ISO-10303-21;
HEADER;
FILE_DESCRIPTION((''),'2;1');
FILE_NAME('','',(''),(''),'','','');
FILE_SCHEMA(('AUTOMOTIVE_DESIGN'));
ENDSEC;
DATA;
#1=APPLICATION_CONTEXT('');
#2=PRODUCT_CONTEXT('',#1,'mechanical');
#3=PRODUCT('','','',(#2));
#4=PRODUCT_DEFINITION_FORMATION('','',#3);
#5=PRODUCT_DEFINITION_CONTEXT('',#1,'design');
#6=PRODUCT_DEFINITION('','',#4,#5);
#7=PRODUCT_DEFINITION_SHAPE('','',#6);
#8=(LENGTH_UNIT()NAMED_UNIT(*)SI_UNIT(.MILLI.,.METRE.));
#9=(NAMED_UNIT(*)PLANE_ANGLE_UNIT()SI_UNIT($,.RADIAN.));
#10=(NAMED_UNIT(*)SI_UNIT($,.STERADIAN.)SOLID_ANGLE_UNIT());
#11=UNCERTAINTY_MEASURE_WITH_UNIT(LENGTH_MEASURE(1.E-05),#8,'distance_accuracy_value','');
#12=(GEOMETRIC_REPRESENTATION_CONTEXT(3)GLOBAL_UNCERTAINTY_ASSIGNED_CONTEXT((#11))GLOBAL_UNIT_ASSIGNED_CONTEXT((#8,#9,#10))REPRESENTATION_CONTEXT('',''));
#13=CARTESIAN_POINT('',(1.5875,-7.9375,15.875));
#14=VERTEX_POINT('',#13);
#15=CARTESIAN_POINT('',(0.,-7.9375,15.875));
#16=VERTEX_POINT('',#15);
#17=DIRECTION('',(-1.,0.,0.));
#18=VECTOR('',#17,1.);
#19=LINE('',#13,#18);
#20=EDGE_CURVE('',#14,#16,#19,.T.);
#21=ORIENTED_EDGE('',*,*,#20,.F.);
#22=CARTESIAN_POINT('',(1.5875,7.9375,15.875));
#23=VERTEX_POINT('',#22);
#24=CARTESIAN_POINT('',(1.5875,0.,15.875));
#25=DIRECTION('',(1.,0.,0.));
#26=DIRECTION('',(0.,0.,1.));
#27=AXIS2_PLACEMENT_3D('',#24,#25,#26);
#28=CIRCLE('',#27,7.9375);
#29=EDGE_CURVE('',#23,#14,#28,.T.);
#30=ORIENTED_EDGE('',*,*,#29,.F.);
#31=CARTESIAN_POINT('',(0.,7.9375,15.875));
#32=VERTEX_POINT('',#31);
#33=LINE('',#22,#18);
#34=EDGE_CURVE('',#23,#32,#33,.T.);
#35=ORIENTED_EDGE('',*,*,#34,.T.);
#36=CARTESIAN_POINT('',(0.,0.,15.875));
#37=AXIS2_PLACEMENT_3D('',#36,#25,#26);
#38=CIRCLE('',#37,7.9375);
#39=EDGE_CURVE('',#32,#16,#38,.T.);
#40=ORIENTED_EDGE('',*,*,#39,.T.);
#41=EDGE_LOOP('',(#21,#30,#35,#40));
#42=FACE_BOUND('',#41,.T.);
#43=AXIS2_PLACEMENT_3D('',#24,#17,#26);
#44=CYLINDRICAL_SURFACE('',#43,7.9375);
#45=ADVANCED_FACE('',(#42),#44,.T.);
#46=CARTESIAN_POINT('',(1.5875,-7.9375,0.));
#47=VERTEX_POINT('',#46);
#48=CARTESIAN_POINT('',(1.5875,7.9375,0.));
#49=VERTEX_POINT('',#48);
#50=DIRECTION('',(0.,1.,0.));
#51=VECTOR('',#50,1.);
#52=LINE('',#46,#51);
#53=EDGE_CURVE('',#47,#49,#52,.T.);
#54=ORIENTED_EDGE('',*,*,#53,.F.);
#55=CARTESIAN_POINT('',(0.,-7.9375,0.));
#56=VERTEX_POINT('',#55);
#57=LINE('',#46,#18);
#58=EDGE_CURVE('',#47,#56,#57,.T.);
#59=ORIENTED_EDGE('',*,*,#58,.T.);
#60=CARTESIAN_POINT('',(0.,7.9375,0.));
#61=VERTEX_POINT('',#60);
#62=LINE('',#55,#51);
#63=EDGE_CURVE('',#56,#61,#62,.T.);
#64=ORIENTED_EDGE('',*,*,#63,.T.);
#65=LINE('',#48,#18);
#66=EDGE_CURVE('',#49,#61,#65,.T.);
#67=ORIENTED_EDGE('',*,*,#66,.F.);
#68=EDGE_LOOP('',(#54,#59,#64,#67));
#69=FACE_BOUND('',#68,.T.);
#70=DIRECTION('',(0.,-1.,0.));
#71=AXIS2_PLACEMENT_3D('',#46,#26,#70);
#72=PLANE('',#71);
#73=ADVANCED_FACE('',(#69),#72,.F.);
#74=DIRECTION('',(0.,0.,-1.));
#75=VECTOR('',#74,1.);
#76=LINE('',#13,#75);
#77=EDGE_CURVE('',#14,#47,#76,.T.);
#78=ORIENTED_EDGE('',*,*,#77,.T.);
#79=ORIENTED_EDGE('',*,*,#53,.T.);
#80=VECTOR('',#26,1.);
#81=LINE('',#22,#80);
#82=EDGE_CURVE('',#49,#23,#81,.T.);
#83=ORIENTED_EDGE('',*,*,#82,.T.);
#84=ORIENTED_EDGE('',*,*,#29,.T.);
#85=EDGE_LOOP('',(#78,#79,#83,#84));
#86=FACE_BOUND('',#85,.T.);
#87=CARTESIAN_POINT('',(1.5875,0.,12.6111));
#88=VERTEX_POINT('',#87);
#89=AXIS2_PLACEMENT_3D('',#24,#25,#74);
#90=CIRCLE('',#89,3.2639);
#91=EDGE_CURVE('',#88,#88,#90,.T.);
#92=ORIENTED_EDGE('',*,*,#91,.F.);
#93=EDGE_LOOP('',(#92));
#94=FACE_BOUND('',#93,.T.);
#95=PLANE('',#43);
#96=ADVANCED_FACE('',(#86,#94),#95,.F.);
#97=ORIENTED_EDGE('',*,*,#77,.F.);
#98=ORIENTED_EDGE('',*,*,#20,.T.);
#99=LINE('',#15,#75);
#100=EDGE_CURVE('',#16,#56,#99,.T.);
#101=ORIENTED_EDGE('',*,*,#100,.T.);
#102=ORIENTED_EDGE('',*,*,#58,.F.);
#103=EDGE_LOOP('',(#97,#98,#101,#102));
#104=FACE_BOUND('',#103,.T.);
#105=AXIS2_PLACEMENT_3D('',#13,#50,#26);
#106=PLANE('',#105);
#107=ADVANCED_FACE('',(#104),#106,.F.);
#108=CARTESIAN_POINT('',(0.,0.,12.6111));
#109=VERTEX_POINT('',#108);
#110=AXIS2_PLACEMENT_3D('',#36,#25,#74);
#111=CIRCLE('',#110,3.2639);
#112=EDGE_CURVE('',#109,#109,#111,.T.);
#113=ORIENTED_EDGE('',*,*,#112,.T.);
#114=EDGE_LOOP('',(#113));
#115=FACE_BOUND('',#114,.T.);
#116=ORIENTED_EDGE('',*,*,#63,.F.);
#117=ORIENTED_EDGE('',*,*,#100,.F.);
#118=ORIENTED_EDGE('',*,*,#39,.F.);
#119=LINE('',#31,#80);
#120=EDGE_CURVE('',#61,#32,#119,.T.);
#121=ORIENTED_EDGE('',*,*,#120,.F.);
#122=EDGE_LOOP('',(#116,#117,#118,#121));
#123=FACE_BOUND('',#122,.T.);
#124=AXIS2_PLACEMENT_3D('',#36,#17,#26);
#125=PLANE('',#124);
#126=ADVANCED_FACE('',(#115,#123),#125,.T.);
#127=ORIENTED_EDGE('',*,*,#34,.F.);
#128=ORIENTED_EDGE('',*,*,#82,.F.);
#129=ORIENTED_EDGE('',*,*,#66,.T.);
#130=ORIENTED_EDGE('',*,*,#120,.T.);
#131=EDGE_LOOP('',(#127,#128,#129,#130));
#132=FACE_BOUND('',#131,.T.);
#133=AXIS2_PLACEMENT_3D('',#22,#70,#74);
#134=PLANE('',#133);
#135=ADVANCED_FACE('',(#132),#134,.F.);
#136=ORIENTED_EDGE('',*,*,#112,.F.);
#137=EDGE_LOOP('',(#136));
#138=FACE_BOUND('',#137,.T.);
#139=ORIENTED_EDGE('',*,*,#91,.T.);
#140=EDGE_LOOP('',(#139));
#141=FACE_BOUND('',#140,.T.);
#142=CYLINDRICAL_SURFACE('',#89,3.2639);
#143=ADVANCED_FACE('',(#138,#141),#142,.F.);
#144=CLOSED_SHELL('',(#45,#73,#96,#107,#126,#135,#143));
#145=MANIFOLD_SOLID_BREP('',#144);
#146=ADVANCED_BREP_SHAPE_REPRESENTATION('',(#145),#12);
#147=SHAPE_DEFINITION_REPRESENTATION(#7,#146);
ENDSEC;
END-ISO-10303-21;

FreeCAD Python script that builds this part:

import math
import FreeCAD as App
import Part
import Sketcher
from FreeCAD import Vector
Q = App.Units.Quantity

doc = App.newDocument("Part")
body = doc.addObject("PartDesign::Body", "Body")

# Sketch on YZ plane
sketch1 = body.newObject("Sketcher::SketchObject", "Sketch")
sketch1.AttachmentSupport = (doc.getObject("YZ_Plane"), [""])
sketch1.MapMode = "FlatFace"
sketch1.addGeometry(Part.LineSegment(Vector(-7.9375, 0, 0), Vector(7.9375, 0, 0)), False)
sketch1.addGeometry(Part.LineSegment(Vector(7.9375, 0, 0), Vector(7.9375, 15.875, 0)), False)
sketch1.addGeometry(Part.ArcOfCircle(Part.Circle(Vector(0, 15.875, 0), Vector(0, 0, 1), 7.9375), math.radians(0), math.radians(180)), False)
sketch1.addGeometry(Part.LineSegment(Vector(-7.9375, 15.875, 0), Vector(-7.9375, 0, 0)), False)
sketch1.addConstraint(Sketcher.Constraint("Coincident", 0, 2, 1, 1))
sketch1.addConstraint(Sketcher.Constraint("Tangent", 1, 2, 2, 1))
sketch1.addConstraint(Sketcher.Constraint("Tangent", 2, 2, 3, 1))
sketch1.addConstraint(Sketcher.Constraint("Coincident", 3, 2, 0, 1))
sketch1.addConstraint(Sketcher.Constraint("Horizontal", 0))
sketch1.addConstraint(Sketcher.Constraint("Vertical", 1))
sketch1.addConstraint(Sketcher.Constraint("Vertical", 3))
sketch1.addConstraint(Sketcher.Constraint("Symmetric", 0, 2, 3, 2, -1, 1))
sketch1.addConstraint(Sketcher.Constraint("Equal", 0, 1))
sketch1.addConstraint(Sketcher.Constraint("Radius", 2, Q("0.3125 in")))
pad1 = body.newObject("PartDesign::Pad", "Pad")
pad1.Profile = sketch1
pad1.Length = Q("0.0625 in")

# Sketch on YZ plane
sketch2 = body.newObject("Sketcher::SketchObject", "Sketch001")
sketch2.AttachmentSupport = (doc.getObject("YZ_Plane"), [""])
sketch2.MapMode = "FlatFace"
sketch2.AttachmentOffset = App.Placement(Vector(0, 0, 0.0625 * 25.4), App.Rotation())
sketch2.addGeometry(Part.Circle(Vector(0, 15.875, 0), Vector(0, 0, 1), 3.2639), False)
sketch2.addConstraint(Sketcher.Constraint("PointOnObject", 0, 3, -2))
sketch2.addConstraint(Sketcher.Constraint("Diameter", 0, Q("0.257 in")))
sketch2.addConstraint(Sketcher.Constraint("DistanceY", -1, 1, 0, 3, Q("0.625 in")))
doc.recompute()
hole = body.newObject("PartDesign::Hole", "Hole")
hole.Profile = sketch2
hole.ThreadType = "None"
hole.Diameter = Q("0.257 in")
hole.DepthType = "ThroughAll"

doc.recompute()
